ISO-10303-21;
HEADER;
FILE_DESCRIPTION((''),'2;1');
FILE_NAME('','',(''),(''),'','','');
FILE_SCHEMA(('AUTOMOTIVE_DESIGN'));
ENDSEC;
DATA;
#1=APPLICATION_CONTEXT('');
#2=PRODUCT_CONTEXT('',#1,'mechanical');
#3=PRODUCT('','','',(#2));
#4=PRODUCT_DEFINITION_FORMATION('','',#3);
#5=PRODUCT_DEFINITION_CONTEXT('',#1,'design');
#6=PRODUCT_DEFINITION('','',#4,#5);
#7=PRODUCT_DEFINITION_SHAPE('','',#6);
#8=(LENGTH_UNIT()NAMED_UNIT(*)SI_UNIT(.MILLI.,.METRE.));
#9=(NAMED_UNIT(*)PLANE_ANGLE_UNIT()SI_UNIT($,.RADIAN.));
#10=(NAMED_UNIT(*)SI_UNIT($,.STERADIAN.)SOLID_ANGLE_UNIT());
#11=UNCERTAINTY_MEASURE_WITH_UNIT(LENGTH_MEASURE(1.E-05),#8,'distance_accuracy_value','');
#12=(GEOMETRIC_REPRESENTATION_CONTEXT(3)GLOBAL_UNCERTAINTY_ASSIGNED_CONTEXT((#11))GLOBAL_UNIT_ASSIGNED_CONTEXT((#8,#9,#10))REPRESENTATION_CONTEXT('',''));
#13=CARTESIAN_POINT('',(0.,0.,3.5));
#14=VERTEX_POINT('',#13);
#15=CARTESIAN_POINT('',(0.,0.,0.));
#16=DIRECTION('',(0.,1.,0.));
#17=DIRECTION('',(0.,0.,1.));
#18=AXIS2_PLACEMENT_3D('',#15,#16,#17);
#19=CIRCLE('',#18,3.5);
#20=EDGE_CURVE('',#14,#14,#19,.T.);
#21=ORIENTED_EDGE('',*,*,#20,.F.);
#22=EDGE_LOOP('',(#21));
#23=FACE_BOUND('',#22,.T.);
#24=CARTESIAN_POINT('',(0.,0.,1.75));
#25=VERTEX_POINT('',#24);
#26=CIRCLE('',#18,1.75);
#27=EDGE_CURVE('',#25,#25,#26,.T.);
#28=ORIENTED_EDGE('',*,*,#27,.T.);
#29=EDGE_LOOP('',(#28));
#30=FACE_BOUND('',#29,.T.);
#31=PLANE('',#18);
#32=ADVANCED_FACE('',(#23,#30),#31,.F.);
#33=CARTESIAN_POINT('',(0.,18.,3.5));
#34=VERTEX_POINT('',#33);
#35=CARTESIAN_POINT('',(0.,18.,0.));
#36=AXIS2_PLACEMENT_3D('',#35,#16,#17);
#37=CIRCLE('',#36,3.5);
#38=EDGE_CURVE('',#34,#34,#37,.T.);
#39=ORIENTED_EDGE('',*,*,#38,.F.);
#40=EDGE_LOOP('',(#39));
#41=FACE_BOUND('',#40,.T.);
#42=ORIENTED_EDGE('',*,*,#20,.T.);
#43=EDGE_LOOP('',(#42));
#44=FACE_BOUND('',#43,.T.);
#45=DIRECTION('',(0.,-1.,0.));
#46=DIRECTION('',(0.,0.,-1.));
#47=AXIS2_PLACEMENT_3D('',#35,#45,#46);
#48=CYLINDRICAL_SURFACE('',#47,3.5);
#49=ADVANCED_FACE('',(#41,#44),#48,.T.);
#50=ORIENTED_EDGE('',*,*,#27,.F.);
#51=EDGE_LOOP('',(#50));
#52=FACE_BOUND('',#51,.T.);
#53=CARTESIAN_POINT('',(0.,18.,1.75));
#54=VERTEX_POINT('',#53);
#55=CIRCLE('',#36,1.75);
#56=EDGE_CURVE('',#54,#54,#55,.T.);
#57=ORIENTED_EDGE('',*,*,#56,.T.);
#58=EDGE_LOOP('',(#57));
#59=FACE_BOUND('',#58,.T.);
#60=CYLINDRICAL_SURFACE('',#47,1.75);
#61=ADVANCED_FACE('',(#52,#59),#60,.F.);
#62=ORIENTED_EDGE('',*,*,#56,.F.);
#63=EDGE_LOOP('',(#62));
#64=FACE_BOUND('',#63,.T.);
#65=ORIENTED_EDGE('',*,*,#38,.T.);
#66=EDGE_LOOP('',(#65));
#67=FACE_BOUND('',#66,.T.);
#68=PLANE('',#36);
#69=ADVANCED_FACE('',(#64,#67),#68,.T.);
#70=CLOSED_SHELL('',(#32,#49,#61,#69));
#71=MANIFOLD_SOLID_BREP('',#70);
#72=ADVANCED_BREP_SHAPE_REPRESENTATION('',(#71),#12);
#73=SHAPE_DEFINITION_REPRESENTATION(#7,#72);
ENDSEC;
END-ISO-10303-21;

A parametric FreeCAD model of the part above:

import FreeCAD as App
import Part
import Sketcher

doc = App.newDocument("Part")
params = doc.addObject("Spreadsheet::Sheet", "Params")
for row, (alias, value) in enumerate([
    ("sketch1_diameter", "7 mm"),
    ("sketch1_diameter2", "3.5 mm"),
    ("pad1_length", "18 mm"),
], start=1):
    params.set(f"A{row}", alias)
    params.set(f"B{row}", "=" + value)
    params.setAlias(f"B{row}", alias)

body = doc.addObject("PartDesign::Body", "Body")

# Sketch on XZ plane
sketch1 = doc.addObject("Sketcher::SketchObject", "Sketch")
body.addObject(sketch1)
sketch1.AttachmentSupport = (doc.XZ_Plane, [""])
sketch1.MapMode = "FlatFace"
sketch1.addGeometry([
    Part.Circle(App.Vector(0, 0, 0), App.Vector(0, 0, 1), 3.5),
    Part.Circle(App.Vector(0, 0, 0), App.Vector(0, 0, 1), 1.8),
], False)
sketch1.addConstraint([
    Sketcher.Constraint("Coincident", 0, 3, -1, 1),
    Sketcher.Constraint("Coincident", 1, 3, -1, 1),
    Sketcher.Constraint("Diameter", 0, 7.0),
    Sketcher.Constraint("Diameter", 1, 3.5),
])
sketch1.setExpression("Constraints[2]", "Params.sketch1_diameter")
sketch1.setExpression("Constraints[3]", "Params.sketch1_diameter2")
pad1 = doc.addObject("PartDesign::Pad", "Pad")
body.addObject(pad1)
pad1.Profile = sketch1
pad1.setExpression("Length", "Params.pad1_length")
pad1.Reversed = True

doc.recompute()
